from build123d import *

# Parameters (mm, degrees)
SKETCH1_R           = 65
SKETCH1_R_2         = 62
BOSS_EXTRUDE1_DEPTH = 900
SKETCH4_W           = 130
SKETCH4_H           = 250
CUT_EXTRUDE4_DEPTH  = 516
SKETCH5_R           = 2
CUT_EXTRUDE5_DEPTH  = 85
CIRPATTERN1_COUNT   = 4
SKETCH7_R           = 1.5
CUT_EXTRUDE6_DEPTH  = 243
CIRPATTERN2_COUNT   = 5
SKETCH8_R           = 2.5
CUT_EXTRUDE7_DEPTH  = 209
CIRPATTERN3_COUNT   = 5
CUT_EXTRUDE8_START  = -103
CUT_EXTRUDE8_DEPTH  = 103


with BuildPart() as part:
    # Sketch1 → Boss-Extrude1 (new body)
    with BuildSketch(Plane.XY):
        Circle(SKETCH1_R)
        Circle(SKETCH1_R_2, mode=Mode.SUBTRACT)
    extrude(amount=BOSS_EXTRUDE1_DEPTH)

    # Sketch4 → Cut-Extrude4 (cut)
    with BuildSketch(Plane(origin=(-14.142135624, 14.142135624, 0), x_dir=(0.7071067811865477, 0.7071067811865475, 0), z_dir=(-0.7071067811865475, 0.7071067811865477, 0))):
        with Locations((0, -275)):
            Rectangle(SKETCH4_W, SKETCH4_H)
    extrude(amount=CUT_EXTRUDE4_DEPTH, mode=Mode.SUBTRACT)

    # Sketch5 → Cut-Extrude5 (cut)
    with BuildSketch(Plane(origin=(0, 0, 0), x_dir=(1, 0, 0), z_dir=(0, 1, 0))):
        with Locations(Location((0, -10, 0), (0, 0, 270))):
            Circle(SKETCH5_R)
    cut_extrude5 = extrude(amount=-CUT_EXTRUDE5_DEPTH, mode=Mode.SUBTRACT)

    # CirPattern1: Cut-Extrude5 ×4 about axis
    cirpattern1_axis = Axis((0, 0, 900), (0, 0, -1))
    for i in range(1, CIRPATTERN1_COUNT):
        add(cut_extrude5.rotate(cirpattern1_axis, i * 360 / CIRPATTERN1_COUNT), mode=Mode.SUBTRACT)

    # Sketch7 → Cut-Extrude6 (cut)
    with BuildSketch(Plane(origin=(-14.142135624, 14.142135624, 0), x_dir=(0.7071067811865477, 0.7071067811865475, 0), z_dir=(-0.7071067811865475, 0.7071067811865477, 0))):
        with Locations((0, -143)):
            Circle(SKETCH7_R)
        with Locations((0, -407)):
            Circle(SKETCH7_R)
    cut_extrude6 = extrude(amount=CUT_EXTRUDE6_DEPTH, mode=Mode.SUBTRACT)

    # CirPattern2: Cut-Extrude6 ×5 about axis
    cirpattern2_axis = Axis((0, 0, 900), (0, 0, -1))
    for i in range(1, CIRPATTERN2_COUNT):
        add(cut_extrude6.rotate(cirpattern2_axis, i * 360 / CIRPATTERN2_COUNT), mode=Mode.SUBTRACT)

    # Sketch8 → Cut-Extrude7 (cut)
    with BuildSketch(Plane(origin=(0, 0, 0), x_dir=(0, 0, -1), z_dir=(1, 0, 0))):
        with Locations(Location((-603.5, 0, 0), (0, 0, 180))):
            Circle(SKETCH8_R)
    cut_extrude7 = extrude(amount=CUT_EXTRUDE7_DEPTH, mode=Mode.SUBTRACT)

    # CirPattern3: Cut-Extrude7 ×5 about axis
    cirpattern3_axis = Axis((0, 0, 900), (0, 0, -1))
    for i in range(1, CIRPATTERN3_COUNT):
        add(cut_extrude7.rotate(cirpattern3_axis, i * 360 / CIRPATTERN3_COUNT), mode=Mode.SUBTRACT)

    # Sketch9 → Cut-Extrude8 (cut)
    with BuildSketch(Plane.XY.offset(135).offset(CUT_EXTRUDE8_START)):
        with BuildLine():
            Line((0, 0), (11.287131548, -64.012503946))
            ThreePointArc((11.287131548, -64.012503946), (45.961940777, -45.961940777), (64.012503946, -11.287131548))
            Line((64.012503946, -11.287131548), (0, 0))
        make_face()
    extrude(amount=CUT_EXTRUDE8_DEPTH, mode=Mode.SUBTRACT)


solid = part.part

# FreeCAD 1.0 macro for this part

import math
import FreeCAD as App
import Part
import Sketcher
from FreeCAD import Vector
Q = App.Units.Quantity


def add_polygon(sketch, points):
    """Adds a closed chain of lines whose ends are joined by coincident constraints."""
    first, n = sketch.GeometryCount, len(points)
    for a, b in zip(points, points[1:] + points[:1]):
        sketch.addGeometry(Part.LineSegment(App.Vector(*a, 0), App.Vector(*b, 0)), False)
    for i in range(n):
        sketch.addConstraint(Sketcher.Constraint("Coincident", first + i, 2, first + (i + 1) % n, 1))

doc = App.newDocument("Part")
body = doc.addObject("PartDesign::Body", "Body")

sketch1 = doc.addObject("Sketcher::SketchObject", "Sketch")
body.addObject(sketch1)
sketch1.AttachmentSupport = (doc.XY_Plane, [""])
sketch1.MapMode = "FlatFace"
sketch1.addGeometry(Part.Circle(Vector(0, 0, 0), Vector(0, 0, 1), 65), False)
sketch1.addGeometry(Part.Circle(Vector(0, 0, 0), Vector(0, 0, 1), 62), False)
sketch1.addConstraint(Sketcher.Constraint("Coincident", 0, 3, -1, 1))
sketch1.addConstraint(Sketcher.Constraint("Coincident", 1, 3, -1, 1))
sketch1.addConstraint(Sketcher.Constraint("Diameter", 0, Q("130 mm")))
sketch1.addConstraint(Sketcher.Constraint("Diameter", 1, Q("124 mm")))
pad1 = doc.addObject("PartDesign::Pad", "Pad")
body.addObject(pad1)
pad1.Profile = sketch1
pad1.Length = 900

sketch2 = doc.addObject("Sketcher::SketchObject", "Sketch001")
body.addObject(sketch2)
sketch2.Placement = App.Placement(Vector(-14.142136, 14.142136, 0), App.Rotation(Vector(0.707106781, 0.707106781, 0), Vector(0, 0, -0.999999999), Vector(-0.707106781, 0.707106781, 0), "ZXY"))
add_polygon(sketch2, [(-65, -150), (-65, -400), (65, -400), (65, -150)])
sketch2.addConstraint(Sketcher.Constraint("Vertical", 0))
sketch2.addConstraint(Sketcher.Constraint("Horizontal", 1))
sketch2.addConstraint(Sketcher.Constraint("Vertical", 2))
sketch2.addConstraint(Sketcher.Constraint("Horizontal", 3))
sketch2.addConstraint(Sketcher.Constraint("DistanceX", 1, 1, 1, 2, Q("130 mm")))
sketch2.addConstraint(Sketcher.Constraint("DistanceY", 0, 2, 0, 1, Q("250 mm")))
sketch2.addConstraint(Sketcher.Constraint("DistanceX", 0, 2, -1, 1, Q("65 mm")))
sketch2.addConstraint(Sketcher.Constraint("DistanceY", 0, 2, -1, 1, Q("400 mm")))
pocket1 = doc.addObject("PartDesign::Pocket", "Pocket")
body.addObject(pocket1)
pocket1.Profile = sketch2
pocket1.Length = 516
pocket1.Reversed = True

sketch3 = doc.addObject("Sketcher::SketchObject", "Sketch002")
body.addObject(sketch3)
sketch3.AttachmentSupport = (doc.XZ_Plane, [""])
sketch3.MapMode = "FlatFace"
sketch3.addGeometry(Part.Circle(Vector(0, 10, 0), Vector(0, 0, 1), 2), False)
sketch3.addConstraint(Sketcher.Constraint("PointOnObject", 0, 3, -2))
sketch3.addConstraint(Sketcher.Constraint("Diameter", 0, Q("4 mm")))
sketch3.addConstraint(Sketcher.Constraint("DistanceY", -1, 1, 0, 3, Q("10 mm")))
pocket2 = doc.addObject("PartDesign::Pocket", "Pocket001")
body.addObject(pocket2)
pocket2.Profile = sketch3
pocket2.Length = 85
pocket2.Reversed = True
doc.recompute()

polarpattern = doc.addObject("PartDesign::PolarPattern", "PolarPattern")
body.addObject(polarpattern)
polarpattern.Originals = [pocket2]
polarpattern.Axis = (doc.Z_Axis, [""])
polarpattern.Angle = 360
polarpattern.Occurrences = 4
body.Tip = polarpattern

sketch4 = doc.addObject("Sketcher::SketchObject", "Sketch003")
body.addObject(sketch4)
sketch4.Placement = App.Placement(Vector(-14.142136, 14.142136, 0), App.Rotation(Vector(0.707106781, 0.707106781, 0), Vector(0, 0, -0.999999999), Vector(-0.707106781, 0.707106781, 0), "ZXY"))
sketch4.addGeometry(Part.Circle(Vector(0, -143, 0), Vector(0, 0, 1), 1.5), False)
sketch4.addGeometry(Part.Circle(Vector(0, -407, 0), Vector(0, 0, 1), 1.5), False)
sketch4.addConstraint(Sketcher.Constraint("Equal", 0, 1))
sketch4.addConstraint(Sketcher.Constraint("PointOnObject", 0, 3, -2))
sketch4.addConstraint(Sketcher.Constraint("PointOnObject", 1, 3, -2))
sketch4.addConstraint(Sketcher.Constraint("Diameter", 0, Q("3 mm")))
sketch4.addConstraint(Sketcher.Constraint("DistanceY", 0, 3, -1, 1, Q("143 mm")))
sketch4.addConstraint(Sketcher.Constraint("DistanceY", 1, 3, -1, 1, Q("407 mm")))
pocket3 = doc.addObject("PartDesign::Pocket", "Pocket002")
body.addObject(pocket3)
pocket3.Profile = sketch4
pocket3.Length = 243
pocket3.Reversed = True
doc.recompute()

polarpattern2 = doc.addObject("PartDesign::PolarPattern", "PolarPattern001")
body.addObject(polarpattern2)
polarpattern2.Originals = [pocket3]
polarpattern2.Axis = (doc.Z_Axis, [""])
polarpattern2.Angle = 360
polarpattern2.Occurrences = 5
body.Tip = polarpattern2

sketch5 = doc.addObject("Sketcher::SketchObject", "Sketch004")
body.addObject(sketch5)
sketch5.AttachmentSupport = (doc.YZ_Plane, [""])
sketch5.MapMode = "FlatFace"
sketch5.addGeometry(Part.Circle(Vector(0, 603.5, 0), Vector(0, 0, 1), 2.5), False)
sketch5.addConstraint(Sketcher.Constraint("PointOnObject", 0, 3, -2))
sketch5.addConstraint(Sketcher.Constraint("Diameter", 0, Q("5 mm")))
sketch5.addConstraint(Sketcher.Constraint("DistanceY", -1, 1, 0, 3, Q("603.5 mm")))
pocket4 = doc.addObject("PartDesign::Pocket", "Pocket003")
body.addObject(pocket4)
pocket4.Profile = sketch5
pocket4.Length = 209
pocket4.Reversed = True
doc.recompute()

polarpattern3 = doc.addObject("PartDesign::PolarPattern", "PolarPattern002")
body.addObject(polarpattern3)
polarpattern3.Originals = [pocket4]
polarpattern3.Axis = (doc.Z_Axis, [""])
polarpattern3.Angle = 360
polarpattern3.Occurrences = 5
body.Tip = polarpattern3

sketch6 = doc.addObject("Sketcher::SketchObject", "Sketch005")
body.addObject(sketch6)
sketch6.AttachmentSupport = (doc.XY_Plane, [""])
sketch6.MapMode = "FlatFace"
sketch6.AttachmentOffset = App.Placement(Vector(0, 0, 32), App.Rotation())
sketch6.addGeometry(Part.LineSegment(Vector(0, 0, 0), Vector(11.287132, -64.012504, 0)), False)
sketch6.addGeometry(Part.ArcOfCircle(Part.Circle(Vector(0, 0, 0), Vector(0, 0, 1), 65), math.radians(-80), math.radians(-10)), False)
sketch6.addGeometry(Part.LineSegment(Vector(64.012504, -11.287132, 0), Vector(0, 0, 0)), False)
sketch6.addConstraint(Sketcher.Constraint("Coincident", 0, 2, 1, 1))
sketch6.addConstraint(Sketcher.Constraint("Coincident", 1, 2, 2, 1))
sketch6.addConstraint(Sketcher.Constraint("Coincident", 2, 2, 0, 1))
sketch6.addConstraint(Sketcher.Constraint("Coincident", 1, 3, -1, 1))
sketch6.addConstraint(Sketcher.Constraint("Coincident", 2, 2, -1, 1))
sketch6.addConstraint(Sketcher.Constraint("Radius", 1, Q("65 mm")))
sketch6.addConstraint(Sketcher.Constraint("Angle", 0, Q("-80 deg")))
sketch6.addConstraint(Sketcher.Constraint("Angle", 2, Q("170 deg")))
pocket5 = doc.addObject("PartDesign::Pocket", "Pocket004")
body.addObject(pocket5)
pocket5.Profile = sketch6
pocket5.Length = 103
pocket5.Reversed = True

doc.recompute()
